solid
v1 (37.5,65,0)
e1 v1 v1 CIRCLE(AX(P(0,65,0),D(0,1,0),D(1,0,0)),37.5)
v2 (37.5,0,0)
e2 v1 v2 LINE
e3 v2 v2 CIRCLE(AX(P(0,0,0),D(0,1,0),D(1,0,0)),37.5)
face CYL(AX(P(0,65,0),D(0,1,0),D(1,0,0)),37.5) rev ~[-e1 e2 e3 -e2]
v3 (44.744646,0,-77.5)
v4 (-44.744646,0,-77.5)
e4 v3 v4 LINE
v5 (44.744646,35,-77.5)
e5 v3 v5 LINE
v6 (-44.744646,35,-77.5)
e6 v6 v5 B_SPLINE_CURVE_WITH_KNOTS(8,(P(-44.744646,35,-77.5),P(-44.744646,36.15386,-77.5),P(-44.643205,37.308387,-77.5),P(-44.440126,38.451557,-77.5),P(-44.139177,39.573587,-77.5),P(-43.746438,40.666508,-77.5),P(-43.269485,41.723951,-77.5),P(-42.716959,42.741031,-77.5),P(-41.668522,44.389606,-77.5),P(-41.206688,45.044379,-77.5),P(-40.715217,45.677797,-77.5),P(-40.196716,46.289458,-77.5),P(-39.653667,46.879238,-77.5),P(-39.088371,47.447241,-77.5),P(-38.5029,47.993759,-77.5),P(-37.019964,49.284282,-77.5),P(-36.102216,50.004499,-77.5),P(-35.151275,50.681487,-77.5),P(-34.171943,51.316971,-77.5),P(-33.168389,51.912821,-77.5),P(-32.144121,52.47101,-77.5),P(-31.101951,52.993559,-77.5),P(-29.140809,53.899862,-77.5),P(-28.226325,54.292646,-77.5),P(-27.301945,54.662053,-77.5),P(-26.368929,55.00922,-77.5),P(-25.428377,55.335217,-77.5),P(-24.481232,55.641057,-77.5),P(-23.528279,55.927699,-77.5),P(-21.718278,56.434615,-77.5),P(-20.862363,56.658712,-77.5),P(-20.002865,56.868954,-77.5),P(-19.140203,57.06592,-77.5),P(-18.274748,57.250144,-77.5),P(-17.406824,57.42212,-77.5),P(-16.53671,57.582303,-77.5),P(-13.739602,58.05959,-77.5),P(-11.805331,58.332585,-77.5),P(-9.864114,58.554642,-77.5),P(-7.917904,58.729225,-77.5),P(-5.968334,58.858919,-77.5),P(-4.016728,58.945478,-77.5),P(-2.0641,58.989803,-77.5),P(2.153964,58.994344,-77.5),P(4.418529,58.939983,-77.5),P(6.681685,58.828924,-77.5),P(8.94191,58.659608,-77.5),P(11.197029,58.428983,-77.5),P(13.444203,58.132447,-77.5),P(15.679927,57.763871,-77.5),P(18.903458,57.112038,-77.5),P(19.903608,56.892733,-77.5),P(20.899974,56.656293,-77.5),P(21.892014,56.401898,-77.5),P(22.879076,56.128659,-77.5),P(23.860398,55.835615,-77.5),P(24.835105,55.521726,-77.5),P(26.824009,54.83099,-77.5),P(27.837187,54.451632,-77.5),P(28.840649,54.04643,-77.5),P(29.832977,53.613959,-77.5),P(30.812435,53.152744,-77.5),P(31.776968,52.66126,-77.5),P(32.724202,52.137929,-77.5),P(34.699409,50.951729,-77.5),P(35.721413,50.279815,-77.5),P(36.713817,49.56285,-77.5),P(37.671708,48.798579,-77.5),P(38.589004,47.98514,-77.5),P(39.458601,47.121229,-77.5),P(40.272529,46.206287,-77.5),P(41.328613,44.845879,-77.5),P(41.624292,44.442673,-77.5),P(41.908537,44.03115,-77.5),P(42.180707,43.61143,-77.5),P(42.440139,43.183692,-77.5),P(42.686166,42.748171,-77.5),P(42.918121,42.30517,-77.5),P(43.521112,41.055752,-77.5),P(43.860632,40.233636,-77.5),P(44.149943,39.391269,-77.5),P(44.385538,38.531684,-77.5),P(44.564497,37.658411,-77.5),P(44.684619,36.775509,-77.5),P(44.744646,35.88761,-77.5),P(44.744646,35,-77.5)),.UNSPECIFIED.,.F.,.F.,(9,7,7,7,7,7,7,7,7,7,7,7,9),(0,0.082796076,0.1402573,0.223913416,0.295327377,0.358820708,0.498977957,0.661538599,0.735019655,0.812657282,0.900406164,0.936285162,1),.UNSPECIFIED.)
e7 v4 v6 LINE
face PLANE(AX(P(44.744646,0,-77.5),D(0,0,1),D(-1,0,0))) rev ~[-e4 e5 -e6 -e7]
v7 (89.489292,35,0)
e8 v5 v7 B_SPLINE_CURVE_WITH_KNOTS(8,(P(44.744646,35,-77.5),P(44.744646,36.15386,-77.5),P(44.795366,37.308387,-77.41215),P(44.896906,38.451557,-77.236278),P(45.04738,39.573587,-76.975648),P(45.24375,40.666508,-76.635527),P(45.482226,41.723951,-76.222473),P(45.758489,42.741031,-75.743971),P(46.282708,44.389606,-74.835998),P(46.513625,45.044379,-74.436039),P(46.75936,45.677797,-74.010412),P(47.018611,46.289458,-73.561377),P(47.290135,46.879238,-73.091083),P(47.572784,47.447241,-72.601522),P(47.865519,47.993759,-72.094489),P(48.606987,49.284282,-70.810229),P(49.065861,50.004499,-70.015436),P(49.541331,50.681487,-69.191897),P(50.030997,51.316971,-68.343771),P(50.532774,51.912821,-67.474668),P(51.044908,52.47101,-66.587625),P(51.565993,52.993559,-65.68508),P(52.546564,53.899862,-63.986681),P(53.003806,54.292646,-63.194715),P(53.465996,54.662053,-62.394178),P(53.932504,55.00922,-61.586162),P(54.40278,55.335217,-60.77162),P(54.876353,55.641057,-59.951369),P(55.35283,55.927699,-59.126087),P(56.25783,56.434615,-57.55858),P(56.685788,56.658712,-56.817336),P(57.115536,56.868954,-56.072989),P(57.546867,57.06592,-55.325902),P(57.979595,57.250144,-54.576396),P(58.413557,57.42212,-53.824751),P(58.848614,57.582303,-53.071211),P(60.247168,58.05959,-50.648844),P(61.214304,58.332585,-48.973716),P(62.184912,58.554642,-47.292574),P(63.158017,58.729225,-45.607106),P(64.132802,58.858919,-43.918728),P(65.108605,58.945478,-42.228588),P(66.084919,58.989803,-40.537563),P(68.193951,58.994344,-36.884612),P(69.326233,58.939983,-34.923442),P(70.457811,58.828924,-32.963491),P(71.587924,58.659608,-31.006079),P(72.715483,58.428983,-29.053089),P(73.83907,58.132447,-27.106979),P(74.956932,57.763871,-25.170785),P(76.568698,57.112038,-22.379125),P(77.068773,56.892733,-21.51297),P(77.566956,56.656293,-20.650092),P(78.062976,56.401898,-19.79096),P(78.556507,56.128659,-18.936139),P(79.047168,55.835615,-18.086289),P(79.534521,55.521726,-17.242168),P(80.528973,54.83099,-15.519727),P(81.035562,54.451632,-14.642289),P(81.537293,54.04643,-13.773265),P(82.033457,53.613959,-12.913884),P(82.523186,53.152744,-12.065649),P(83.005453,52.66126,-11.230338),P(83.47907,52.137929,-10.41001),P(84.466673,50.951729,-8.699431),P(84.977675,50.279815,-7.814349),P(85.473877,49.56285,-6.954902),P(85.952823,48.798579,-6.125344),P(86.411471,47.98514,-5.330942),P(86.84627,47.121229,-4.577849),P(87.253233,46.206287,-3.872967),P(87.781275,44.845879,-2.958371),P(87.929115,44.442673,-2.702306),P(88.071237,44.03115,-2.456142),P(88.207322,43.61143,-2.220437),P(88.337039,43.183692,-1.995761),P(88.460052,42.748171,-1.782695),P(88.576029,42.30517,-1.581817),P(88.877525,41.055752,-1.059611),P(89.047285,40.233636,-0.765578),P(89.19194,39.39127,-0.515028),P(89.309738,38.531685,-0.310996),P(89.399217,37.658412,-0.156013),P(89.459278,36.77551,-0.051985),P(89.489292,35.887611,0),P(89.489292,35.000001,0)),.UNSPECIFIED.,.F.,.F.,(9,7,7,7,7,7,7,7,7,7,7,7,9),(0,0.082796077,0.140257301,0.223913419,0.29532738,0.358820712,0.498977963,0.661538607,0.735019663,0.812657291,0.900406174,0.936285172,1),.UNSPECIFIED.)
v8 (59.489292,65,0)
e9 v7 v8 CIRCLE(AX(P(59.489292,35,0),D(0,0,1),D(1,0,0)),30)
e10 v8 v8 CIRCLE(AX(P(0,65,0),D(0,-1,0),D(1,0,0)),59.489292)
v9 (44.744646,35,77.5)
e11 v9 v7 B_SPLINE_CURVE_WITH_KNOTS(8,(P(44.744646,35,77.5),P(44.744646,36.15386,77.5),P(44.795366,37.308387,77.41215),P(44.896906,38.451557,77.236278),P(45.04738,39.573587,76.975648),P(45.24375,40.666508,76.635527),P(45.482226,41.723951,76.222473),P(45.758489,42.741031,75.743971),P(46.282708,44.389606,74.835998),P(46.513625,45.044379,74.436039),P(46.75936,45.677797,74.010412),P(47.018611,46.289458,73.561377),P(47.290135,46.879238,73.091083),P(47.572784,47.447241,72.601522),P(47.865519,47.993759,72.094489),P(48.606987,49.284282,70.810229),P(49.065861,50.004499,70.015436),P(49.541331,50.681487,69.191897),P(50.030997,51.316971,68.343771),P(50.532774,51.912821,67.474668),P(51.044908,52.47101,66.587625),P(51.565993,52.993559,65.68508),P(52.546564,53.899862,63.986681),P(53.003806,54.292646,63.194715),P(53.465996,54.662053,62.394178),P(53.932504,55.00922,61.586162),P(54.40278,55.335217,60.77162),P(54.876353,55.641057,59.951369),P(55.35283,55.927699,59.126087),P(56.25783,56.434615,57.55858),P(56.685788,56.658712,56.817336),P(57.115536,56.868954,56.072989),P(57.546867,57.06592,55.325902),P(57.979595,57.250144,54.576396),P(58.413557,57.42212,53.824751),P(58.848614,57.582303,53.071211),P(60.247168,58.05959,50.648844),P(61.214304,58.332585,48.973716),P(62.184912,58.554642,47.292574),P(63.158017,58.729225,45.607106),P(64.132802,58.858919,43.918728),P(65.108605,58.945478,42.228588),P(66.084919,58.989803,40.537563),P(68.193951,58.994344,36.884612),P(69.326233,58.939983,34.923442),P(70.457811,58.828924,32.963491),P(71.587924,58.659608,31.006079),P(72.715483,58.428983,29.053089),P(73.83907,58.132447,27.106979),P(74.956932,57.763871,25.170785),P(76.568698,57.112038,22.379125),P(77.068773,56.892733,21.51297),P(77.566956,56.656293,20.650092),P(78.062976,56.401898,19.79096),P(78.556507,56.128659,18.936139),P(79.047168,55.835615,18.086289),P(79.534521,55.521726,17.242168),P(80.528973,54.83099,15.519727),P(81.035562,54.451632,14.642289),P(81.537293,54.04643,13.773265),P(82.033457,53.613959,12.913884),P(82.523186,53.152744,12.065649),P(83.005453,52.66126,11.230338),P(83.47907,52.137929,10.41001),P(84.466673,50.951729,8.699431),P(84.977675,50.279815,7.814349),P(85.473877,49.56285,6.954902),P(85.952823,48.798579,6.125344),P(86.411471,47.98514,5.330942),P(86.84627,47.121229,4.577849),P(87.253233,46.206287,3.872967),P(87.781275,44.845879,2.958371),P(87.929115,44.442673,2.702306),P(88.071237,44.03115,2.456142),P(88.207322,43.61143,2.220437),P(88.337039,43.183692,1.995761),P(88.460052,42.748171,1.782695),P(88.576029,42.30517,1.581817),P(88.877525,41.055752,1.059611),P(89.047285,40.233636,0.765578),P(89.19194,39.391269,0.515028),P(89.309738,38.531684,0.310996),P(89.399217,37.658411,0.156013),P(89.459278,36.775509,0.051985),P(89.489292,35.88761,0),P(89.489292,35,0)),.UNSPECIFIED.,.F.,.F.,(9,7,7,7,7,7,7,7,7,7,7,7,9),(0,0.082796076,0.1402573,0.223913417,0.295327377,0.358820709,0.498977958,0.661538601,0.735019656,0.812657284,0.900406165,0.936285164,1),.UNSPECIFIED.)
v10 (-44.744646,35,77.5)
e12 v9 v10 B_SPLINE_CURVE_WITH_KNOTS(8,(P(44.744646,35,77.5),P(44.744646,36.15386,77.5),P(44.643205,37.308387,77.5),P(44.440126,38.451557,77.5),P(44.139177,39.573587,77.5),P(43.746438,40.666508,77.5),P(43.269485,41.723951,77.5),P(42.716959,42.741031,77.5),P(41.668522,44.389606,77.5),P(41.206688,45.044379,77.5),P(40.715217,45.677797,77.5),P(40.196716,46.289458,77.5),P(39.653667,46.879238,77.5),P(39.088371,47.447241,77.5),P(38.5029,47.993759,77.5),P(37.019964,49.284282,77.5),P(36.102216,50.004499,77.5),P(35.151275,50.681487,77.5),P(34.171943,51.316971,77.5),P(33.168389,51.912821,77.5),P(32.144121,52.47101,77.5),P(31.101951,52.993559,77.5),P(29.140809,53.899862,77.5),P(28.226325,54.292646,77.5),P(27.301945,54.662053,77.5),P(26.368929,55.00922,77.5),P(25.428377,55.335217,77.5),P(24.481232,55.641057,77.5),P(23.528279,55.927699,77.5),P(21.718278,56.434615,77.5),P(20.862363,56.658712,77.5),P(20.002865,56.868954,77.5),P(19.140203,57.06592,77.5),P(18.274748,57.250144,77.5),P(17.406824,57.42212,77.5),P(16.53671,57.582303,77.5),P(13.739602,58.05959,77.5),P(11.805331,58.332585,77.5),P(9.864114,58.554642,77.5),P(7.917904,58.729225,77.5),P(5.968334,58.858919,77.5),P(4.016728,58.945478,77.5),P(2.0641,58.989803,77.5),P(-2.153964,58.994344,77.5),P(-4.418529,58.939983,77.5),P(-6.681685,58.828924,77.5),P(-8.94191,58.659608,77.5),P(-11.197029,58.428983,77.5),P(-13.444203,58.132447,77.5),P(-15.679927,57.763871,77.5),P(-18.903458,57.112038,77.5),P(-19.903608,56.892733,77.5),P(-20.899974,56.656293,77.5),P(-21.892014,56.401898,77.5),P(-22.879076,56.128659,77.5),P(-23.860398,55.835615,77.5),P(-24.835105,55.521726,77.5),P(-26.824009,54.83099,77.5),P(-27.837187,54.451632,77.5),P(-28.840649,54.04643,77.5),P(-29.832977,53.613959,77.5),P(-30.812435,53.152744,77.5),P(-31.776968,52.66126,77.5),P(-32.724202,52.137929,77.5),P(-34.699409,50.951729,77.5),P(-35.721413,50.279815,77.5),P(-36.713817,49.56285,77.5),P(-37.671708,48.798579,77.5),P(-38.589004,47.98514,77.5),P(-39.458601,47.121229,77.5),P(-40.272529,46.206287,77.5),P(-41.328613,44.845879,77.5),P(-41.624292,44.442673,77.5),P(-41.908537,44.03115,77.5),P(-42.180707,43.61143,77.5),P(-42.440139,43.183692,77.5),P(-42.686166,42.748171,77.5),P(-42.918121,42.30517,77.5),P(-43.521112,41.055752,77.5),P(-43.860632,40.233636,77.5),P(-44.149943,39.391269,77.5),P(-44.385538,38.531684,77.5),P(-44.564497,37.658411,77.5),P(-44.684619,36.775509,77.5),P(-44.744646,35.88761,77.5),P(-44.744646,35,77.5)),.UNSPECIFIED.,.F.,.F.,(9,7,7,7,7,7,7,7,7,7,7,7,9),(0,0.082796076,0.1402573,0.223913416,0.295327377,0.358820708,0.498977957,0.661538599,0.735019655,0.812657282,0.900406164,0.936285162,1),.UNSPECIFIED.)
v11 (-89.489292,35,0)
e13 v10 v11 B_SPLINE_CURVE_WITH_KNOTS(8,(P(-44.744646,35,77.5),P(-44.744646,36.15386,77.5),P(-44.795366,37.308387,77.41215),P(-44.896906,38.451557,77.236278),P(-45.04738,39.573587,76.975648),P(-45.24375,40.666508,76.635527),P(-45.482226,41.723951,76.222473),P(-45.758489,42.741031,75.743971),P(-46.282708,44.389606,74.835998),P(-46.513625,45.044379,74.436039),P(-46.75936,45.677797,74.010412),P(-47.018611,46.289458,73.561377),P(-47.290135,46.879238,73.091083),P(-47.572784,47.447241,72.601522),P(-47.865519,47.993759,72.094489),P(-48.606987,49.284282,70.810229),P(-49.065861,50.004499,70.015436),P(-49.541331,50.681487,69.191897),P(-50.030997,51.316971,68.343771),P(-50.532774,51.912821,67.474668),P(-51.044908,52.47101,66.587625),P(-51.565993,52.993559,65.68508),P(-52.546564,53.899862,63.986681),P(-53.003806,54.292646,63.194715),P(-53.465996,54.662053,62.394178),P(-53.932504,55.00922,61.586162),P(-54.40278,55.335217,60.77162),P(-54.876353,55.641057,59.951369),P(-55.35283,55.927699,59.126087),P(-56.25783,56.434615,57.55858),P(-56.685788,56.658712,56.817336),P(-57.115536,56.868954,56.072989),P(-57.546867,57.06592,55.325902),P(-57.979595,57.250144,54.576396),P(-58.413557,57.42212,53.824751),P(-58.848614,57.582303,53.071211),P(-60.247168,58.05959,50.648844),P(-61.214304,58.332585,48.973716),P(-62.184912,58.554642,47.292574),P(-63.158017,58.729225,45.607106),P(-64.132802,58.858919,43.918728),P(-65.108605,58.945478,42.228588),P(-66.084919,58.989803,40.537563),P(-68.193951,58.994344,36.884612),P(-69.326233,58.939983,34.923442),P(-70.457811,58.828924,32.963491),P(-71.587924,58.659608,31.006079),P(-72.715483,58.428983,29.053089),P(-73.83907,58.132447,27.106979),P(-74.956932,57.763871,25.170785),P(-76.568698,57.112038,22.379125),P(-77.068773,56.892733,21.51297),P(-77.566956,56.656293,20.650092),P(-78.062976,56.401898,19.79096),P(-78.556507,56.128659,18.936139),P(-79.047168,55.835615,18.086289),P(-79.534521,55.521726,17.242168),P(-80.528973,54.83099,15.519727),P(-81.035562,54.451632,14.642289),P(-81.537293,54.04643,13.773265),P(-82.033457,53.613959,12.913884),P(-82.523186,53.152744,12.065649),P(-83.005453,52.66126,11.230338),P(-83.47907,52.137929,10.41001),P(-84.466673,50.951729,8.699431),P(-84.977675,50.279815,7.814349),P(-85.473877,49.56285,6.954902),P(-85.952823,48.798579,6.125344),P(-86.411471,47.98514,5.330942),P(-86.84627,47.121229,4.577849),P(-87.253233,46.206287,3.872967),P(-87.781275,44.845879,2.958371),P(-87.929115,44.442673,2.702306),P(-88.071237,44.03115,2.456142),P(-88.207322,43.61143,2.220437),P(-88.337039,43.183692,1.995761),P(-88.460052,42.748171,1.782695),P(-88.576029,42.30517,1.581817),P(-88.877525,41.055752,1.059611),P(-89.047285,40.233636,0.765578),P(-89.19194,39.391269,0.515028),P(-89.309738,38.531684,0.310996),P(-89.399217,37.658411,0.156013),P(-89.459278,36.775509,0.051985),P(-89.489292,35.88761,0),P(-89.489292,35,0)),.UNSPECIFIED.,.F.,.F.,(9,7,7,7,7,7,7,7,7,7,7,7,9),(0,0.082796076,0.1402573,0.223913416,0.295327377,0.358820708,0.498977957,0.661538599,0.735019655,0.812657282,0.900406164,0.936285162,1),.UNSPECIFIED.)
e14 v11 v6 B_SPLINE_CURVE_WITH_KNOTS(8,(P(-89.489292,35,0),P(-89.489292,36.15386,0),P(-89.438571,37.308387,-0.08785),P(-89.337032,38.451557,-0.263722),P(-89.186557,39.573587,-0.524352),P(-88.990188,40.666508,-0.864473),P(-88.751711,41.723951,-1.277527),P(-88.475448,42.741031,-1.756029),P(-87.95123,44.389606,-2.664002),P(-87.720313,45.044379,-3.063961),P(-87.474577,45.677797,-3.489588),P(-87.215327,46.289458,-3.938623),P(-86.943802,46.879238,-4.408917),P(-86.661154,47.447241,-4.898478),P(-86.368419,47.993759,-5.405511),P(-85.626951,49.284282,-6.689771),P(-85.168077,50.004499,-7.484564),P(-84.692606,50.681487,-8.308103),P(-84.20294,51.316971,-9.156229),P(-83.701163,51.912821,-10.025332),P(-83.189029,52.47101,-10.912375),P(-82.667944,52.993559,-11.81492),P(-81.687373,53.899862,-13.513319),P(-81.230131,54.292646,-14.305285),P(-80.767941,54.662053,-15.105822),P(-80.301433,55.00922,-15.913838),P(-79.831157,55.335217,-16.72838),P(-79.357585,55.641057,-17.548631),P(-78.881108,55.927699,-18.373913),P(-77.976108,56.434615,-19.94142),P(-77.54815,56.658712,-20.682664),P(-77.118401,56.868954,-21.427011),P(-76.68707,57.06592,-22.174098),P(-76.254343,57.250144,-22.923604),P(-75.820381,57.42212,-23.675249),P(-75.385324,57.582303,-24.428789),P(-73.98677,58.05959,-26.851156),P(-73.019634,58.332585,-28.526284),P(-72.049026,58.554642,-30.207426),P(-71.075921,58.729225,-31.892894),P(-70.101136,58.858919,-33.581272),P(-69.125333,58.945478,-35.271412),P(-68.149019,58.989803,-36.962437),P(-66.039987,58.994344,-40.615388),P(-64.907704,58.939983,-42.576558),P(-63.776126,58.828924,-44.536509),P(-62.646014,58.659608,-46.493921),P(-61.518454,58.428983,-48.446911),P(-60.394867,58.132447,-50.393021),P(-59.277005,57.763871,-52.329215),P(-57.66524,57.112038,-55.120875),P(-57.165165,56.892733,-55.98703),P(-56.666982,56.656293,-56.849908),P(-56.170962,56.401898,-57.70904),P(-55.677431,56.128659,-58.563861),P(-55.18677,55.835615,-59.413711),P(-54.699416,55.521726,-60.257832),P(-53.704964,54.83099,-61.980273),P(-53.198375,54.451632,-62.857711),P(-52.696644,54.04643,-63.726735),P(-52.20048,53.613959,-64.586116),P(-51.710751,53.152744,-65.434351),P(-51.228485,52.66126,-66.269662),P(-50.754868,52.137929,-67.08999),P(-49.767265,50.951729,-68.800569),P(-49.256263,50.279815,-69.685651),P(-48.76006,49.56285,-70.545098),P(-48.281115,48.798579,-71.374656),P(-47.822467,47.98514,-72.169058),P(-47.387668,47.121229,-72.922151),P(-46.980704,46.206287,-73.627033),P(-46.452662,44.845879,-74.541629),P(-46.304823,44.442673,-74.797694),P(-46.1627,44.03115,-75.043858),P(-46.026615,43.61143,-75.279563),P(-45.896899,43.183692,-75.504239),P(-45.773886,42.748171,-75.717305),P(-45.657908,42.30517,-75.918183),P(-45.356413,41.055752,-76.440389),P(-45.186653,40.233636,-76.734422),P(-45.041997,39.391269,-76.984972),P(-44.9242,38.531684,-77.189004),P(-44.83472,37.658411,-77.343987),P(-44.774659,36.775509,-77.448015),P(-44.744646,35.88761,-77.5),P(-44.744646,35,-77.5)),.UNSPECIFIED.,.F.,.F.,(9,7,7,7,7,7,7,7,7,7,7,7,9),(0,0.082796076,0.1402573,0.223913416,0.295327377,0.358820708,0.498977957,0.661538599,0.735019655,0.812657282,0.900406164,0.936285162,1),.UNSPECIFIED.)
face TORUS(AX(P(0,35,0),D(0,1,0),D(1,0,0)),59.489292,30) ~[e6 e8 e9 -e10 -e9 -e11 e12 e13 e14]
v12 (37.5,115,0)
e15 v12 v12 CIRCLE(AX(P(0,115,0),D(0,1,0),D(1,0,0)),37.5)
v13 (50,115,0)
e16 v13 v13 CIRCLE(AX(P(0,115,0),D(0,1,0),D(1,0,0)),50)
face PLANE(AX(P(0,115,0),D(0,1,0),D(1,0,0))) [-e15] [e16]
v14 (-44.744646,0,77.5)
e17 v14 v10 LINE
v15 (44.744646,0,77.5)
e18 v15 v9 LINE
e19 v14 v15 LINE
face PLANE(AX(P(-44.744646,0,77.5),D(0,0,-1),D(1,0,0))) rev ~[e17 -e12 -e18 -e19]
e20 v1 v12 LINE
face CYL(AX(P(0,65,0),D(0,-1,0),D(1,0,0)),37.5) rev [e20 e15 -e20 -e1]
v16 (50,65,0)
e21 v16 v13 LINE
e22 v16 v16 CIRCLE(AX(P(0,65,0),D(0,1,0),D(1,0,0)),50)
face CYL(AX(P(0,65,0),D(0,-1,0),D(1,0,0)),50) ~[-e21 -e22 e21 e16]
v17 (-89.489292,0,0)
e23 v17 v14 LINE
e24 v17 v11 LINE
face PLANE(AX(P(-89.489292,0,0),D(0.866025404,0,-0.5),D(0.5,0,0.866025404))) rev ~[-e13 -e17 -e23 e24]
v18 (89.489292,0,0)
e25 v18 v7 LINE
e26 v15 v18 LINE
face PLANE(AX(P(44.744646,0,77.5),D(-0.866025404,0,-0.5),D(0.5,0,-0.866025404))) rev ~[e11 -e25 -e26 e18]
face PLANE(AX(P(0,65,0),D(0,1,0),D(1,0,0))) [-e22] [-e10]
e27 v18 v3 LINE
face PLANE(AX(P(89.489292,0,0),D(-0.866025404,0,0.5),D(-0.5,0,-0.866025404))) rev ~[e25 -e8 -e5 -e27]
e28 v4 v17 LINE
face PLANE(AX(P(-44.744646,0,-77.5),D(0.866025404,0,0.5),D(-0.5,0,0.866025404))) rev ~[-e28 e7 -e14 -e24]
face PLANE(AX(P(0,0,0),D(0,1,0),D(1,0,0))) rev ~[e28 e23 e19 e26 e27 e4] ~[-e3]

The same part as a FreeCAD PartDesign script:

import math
import FreeCAD as App
import Part
import Sketcher

V = App.Vector
Q = App.Units.Quantity


def add_polygon(sketch, points):
    """Adds a closed chain of lines whose ends are joined by coincident constraints."""
    first, n = sketch.GeometryCount, len(points)
    for a, b in zip(points, points[1:] + points[:1]):
        sketch.addGeometry(Part.LineSegment(App.Vector(*a, 0), App.Vector(*b, 0)), False)
    for i in range(n):
        sketch.addConstraint(Sketcher.Constraint("Coincident", first + i, 2, first + (i + 1) % n, 1))

doc = App.newDocument("Part")
body = doc.addObject("PartDesign::Body", "Body")

# Sketch on XZ plane
sketch1 = body.newObject("Sketcher::SketchObject", "Sketch")
sketch1.AttachmentSupport = (doc.getObject("XZ_Plane"), [""])
sketch1.MapMode = "FlatFace"
add_polygon(sketch1, [(-89, 0), (-45, 78), (45, 78), (89, 0), (45, -78), (-45, -78)])  # lines 0-5
sketch1.addConstraint([
    Sketcher.Constraint("Horizontal", 1),
    Sketcher.Constraint("Horizontal", 4),
    Sketcher.Constraint("Symmetric", 0, 2, 3, 2, -1, 1),
    Sketcher.Constraint("Symmetric", 2, 2, 5, 2, -1, 1),
    Sketcher.Constraint("PointOnObject", 2, 2, -1),
    Sketcher.Constraint("Parallel", 2, 5),
    Sketcher.Constraint("Vertical", 1, 2, 3, 2),
    Sketcher.Constraint("Angle", 0, Q("60 deg")),
    Sketcher.Constraint("DistanceY", 3, 2, 1, 2, Q("155 mm")),
    Sketcher.Constraint("DistanceX", 1, 1, 1, 2, Q("89.489292 mm")),
])
pad1 = body.newObject("PartDesign::Pad", "Pad")
pad1.Profile = sketch1
pad1.Length = 65
pad1.Reversed = True

# Sketch on XZ plane
sketch2 = body.newObject("Sketcher::SketchObject", "Sketch001")
sketch2.AttachmentSupport = (doc.getObject("XZ_Plane"), [""])
sketch2.MapMode = "FlatFace"
sketch2.AttachmentOffset = App.Placement(V(0, 0, -65), App.Rotation())
sketch2.addGeometry([
    Part.Circle(V(0, 0, 0), V(0, 0, 1), 50),
    Part.Circle(V(0, 0, 0), V(0, 0, 1), 38),
], False)
sketch2.addConstraint([
    Sketcher.Constraint("Coincident", 0, 3, -1, 1),
    Sketcher.Constraint("Coincident", 1, 3, -1, 1),
    Sketcher.Constraint("Diameter", 0, Q("100 mm")),
    Sketcher.Constraint("Diameter", 1, Q("75 mm")),
])
pad2 = body.newObject("PartDesign::Pad", "Pad001")
pad2.Profile = sketch2
pad2.Length = 50
pad2.Reversed = True

# Sketch on XZ plane
sketch3 = body.newObject("Sketcher::SketchObject", "Sketch002")
sketch3.AttachmentSupport = (doc.getObject("XZ_Plane"), [""])
sketch3.MapMode = "FlatFace"
sketch3.AttachmentOffset = App.Placement(V(0, 0, -65), App.Rotation())
sketch3.addGeometry(Part.Circle(V(0, 0, 0), V(0, 0, 1), 38), False)
sketch3.addConstraint([
    Sketcher.Constraint("Coincident", 0, 3, -1, 1),
    Sketcher.Constraint("Diameter", 0, Q("75 mm")),
])
pocket1 = body.newObject("PartDesign::Pocket", "Pocket")
pocket1.Profile = sketch3
pocket1.Length = 81
pocket1.Reversed = True

# Sketch on XY plane
sketch4 = body.newObject("Sketcher::SketchObject", "Sketch003")
sketch4.AttachmentSupport = (doc.getObject("XY_Plane"), [""])
sketch4.MapMode = "FlatFace"
sketch4.addGeometry([
    Part.LineSegment(V(89, 65, 0), V(59, 65, 0)),
    Part.ArcOfCircle(Part.Circle(V(59, 35, 0), V(0, 0, 1), 30), math.radians(0), math.radians(90)),
    Part.LineSegment(V(89, 35, 0), V(89, 65, 0)),
], False)
sketch4.addConstraint([
    Sketcher.Constraint("Tangent", 0, 2, 1, 2),
    Sketcher.Constraint("Tangent", 1, 1, 2, 1),
    Sketcher.Constraint("Coincident", 2, 2, 0, 1),
    Sketcher.Constraint("Horizontal", 0),
    Sketcher.Constraint("Vertical", 2),
    Sketcher.Constraint("Radius", 1, Q("30 mm")),
    Sketcher.Constraint("DistanceY", -1, 1, 1, 3, Q("35 mm")),
    Sketcher.Constraint("DistanceX", -1, 1, 1, 3, Q("59.489292 mm")),
])
groove = body.newObject("PartDesign::Groove", "Groove")
groove.Profile = sketch4
groove.ReferenceAxis = (sketch4, ["V_Axis"])
groove.Angle = 360

doc.recompute()
